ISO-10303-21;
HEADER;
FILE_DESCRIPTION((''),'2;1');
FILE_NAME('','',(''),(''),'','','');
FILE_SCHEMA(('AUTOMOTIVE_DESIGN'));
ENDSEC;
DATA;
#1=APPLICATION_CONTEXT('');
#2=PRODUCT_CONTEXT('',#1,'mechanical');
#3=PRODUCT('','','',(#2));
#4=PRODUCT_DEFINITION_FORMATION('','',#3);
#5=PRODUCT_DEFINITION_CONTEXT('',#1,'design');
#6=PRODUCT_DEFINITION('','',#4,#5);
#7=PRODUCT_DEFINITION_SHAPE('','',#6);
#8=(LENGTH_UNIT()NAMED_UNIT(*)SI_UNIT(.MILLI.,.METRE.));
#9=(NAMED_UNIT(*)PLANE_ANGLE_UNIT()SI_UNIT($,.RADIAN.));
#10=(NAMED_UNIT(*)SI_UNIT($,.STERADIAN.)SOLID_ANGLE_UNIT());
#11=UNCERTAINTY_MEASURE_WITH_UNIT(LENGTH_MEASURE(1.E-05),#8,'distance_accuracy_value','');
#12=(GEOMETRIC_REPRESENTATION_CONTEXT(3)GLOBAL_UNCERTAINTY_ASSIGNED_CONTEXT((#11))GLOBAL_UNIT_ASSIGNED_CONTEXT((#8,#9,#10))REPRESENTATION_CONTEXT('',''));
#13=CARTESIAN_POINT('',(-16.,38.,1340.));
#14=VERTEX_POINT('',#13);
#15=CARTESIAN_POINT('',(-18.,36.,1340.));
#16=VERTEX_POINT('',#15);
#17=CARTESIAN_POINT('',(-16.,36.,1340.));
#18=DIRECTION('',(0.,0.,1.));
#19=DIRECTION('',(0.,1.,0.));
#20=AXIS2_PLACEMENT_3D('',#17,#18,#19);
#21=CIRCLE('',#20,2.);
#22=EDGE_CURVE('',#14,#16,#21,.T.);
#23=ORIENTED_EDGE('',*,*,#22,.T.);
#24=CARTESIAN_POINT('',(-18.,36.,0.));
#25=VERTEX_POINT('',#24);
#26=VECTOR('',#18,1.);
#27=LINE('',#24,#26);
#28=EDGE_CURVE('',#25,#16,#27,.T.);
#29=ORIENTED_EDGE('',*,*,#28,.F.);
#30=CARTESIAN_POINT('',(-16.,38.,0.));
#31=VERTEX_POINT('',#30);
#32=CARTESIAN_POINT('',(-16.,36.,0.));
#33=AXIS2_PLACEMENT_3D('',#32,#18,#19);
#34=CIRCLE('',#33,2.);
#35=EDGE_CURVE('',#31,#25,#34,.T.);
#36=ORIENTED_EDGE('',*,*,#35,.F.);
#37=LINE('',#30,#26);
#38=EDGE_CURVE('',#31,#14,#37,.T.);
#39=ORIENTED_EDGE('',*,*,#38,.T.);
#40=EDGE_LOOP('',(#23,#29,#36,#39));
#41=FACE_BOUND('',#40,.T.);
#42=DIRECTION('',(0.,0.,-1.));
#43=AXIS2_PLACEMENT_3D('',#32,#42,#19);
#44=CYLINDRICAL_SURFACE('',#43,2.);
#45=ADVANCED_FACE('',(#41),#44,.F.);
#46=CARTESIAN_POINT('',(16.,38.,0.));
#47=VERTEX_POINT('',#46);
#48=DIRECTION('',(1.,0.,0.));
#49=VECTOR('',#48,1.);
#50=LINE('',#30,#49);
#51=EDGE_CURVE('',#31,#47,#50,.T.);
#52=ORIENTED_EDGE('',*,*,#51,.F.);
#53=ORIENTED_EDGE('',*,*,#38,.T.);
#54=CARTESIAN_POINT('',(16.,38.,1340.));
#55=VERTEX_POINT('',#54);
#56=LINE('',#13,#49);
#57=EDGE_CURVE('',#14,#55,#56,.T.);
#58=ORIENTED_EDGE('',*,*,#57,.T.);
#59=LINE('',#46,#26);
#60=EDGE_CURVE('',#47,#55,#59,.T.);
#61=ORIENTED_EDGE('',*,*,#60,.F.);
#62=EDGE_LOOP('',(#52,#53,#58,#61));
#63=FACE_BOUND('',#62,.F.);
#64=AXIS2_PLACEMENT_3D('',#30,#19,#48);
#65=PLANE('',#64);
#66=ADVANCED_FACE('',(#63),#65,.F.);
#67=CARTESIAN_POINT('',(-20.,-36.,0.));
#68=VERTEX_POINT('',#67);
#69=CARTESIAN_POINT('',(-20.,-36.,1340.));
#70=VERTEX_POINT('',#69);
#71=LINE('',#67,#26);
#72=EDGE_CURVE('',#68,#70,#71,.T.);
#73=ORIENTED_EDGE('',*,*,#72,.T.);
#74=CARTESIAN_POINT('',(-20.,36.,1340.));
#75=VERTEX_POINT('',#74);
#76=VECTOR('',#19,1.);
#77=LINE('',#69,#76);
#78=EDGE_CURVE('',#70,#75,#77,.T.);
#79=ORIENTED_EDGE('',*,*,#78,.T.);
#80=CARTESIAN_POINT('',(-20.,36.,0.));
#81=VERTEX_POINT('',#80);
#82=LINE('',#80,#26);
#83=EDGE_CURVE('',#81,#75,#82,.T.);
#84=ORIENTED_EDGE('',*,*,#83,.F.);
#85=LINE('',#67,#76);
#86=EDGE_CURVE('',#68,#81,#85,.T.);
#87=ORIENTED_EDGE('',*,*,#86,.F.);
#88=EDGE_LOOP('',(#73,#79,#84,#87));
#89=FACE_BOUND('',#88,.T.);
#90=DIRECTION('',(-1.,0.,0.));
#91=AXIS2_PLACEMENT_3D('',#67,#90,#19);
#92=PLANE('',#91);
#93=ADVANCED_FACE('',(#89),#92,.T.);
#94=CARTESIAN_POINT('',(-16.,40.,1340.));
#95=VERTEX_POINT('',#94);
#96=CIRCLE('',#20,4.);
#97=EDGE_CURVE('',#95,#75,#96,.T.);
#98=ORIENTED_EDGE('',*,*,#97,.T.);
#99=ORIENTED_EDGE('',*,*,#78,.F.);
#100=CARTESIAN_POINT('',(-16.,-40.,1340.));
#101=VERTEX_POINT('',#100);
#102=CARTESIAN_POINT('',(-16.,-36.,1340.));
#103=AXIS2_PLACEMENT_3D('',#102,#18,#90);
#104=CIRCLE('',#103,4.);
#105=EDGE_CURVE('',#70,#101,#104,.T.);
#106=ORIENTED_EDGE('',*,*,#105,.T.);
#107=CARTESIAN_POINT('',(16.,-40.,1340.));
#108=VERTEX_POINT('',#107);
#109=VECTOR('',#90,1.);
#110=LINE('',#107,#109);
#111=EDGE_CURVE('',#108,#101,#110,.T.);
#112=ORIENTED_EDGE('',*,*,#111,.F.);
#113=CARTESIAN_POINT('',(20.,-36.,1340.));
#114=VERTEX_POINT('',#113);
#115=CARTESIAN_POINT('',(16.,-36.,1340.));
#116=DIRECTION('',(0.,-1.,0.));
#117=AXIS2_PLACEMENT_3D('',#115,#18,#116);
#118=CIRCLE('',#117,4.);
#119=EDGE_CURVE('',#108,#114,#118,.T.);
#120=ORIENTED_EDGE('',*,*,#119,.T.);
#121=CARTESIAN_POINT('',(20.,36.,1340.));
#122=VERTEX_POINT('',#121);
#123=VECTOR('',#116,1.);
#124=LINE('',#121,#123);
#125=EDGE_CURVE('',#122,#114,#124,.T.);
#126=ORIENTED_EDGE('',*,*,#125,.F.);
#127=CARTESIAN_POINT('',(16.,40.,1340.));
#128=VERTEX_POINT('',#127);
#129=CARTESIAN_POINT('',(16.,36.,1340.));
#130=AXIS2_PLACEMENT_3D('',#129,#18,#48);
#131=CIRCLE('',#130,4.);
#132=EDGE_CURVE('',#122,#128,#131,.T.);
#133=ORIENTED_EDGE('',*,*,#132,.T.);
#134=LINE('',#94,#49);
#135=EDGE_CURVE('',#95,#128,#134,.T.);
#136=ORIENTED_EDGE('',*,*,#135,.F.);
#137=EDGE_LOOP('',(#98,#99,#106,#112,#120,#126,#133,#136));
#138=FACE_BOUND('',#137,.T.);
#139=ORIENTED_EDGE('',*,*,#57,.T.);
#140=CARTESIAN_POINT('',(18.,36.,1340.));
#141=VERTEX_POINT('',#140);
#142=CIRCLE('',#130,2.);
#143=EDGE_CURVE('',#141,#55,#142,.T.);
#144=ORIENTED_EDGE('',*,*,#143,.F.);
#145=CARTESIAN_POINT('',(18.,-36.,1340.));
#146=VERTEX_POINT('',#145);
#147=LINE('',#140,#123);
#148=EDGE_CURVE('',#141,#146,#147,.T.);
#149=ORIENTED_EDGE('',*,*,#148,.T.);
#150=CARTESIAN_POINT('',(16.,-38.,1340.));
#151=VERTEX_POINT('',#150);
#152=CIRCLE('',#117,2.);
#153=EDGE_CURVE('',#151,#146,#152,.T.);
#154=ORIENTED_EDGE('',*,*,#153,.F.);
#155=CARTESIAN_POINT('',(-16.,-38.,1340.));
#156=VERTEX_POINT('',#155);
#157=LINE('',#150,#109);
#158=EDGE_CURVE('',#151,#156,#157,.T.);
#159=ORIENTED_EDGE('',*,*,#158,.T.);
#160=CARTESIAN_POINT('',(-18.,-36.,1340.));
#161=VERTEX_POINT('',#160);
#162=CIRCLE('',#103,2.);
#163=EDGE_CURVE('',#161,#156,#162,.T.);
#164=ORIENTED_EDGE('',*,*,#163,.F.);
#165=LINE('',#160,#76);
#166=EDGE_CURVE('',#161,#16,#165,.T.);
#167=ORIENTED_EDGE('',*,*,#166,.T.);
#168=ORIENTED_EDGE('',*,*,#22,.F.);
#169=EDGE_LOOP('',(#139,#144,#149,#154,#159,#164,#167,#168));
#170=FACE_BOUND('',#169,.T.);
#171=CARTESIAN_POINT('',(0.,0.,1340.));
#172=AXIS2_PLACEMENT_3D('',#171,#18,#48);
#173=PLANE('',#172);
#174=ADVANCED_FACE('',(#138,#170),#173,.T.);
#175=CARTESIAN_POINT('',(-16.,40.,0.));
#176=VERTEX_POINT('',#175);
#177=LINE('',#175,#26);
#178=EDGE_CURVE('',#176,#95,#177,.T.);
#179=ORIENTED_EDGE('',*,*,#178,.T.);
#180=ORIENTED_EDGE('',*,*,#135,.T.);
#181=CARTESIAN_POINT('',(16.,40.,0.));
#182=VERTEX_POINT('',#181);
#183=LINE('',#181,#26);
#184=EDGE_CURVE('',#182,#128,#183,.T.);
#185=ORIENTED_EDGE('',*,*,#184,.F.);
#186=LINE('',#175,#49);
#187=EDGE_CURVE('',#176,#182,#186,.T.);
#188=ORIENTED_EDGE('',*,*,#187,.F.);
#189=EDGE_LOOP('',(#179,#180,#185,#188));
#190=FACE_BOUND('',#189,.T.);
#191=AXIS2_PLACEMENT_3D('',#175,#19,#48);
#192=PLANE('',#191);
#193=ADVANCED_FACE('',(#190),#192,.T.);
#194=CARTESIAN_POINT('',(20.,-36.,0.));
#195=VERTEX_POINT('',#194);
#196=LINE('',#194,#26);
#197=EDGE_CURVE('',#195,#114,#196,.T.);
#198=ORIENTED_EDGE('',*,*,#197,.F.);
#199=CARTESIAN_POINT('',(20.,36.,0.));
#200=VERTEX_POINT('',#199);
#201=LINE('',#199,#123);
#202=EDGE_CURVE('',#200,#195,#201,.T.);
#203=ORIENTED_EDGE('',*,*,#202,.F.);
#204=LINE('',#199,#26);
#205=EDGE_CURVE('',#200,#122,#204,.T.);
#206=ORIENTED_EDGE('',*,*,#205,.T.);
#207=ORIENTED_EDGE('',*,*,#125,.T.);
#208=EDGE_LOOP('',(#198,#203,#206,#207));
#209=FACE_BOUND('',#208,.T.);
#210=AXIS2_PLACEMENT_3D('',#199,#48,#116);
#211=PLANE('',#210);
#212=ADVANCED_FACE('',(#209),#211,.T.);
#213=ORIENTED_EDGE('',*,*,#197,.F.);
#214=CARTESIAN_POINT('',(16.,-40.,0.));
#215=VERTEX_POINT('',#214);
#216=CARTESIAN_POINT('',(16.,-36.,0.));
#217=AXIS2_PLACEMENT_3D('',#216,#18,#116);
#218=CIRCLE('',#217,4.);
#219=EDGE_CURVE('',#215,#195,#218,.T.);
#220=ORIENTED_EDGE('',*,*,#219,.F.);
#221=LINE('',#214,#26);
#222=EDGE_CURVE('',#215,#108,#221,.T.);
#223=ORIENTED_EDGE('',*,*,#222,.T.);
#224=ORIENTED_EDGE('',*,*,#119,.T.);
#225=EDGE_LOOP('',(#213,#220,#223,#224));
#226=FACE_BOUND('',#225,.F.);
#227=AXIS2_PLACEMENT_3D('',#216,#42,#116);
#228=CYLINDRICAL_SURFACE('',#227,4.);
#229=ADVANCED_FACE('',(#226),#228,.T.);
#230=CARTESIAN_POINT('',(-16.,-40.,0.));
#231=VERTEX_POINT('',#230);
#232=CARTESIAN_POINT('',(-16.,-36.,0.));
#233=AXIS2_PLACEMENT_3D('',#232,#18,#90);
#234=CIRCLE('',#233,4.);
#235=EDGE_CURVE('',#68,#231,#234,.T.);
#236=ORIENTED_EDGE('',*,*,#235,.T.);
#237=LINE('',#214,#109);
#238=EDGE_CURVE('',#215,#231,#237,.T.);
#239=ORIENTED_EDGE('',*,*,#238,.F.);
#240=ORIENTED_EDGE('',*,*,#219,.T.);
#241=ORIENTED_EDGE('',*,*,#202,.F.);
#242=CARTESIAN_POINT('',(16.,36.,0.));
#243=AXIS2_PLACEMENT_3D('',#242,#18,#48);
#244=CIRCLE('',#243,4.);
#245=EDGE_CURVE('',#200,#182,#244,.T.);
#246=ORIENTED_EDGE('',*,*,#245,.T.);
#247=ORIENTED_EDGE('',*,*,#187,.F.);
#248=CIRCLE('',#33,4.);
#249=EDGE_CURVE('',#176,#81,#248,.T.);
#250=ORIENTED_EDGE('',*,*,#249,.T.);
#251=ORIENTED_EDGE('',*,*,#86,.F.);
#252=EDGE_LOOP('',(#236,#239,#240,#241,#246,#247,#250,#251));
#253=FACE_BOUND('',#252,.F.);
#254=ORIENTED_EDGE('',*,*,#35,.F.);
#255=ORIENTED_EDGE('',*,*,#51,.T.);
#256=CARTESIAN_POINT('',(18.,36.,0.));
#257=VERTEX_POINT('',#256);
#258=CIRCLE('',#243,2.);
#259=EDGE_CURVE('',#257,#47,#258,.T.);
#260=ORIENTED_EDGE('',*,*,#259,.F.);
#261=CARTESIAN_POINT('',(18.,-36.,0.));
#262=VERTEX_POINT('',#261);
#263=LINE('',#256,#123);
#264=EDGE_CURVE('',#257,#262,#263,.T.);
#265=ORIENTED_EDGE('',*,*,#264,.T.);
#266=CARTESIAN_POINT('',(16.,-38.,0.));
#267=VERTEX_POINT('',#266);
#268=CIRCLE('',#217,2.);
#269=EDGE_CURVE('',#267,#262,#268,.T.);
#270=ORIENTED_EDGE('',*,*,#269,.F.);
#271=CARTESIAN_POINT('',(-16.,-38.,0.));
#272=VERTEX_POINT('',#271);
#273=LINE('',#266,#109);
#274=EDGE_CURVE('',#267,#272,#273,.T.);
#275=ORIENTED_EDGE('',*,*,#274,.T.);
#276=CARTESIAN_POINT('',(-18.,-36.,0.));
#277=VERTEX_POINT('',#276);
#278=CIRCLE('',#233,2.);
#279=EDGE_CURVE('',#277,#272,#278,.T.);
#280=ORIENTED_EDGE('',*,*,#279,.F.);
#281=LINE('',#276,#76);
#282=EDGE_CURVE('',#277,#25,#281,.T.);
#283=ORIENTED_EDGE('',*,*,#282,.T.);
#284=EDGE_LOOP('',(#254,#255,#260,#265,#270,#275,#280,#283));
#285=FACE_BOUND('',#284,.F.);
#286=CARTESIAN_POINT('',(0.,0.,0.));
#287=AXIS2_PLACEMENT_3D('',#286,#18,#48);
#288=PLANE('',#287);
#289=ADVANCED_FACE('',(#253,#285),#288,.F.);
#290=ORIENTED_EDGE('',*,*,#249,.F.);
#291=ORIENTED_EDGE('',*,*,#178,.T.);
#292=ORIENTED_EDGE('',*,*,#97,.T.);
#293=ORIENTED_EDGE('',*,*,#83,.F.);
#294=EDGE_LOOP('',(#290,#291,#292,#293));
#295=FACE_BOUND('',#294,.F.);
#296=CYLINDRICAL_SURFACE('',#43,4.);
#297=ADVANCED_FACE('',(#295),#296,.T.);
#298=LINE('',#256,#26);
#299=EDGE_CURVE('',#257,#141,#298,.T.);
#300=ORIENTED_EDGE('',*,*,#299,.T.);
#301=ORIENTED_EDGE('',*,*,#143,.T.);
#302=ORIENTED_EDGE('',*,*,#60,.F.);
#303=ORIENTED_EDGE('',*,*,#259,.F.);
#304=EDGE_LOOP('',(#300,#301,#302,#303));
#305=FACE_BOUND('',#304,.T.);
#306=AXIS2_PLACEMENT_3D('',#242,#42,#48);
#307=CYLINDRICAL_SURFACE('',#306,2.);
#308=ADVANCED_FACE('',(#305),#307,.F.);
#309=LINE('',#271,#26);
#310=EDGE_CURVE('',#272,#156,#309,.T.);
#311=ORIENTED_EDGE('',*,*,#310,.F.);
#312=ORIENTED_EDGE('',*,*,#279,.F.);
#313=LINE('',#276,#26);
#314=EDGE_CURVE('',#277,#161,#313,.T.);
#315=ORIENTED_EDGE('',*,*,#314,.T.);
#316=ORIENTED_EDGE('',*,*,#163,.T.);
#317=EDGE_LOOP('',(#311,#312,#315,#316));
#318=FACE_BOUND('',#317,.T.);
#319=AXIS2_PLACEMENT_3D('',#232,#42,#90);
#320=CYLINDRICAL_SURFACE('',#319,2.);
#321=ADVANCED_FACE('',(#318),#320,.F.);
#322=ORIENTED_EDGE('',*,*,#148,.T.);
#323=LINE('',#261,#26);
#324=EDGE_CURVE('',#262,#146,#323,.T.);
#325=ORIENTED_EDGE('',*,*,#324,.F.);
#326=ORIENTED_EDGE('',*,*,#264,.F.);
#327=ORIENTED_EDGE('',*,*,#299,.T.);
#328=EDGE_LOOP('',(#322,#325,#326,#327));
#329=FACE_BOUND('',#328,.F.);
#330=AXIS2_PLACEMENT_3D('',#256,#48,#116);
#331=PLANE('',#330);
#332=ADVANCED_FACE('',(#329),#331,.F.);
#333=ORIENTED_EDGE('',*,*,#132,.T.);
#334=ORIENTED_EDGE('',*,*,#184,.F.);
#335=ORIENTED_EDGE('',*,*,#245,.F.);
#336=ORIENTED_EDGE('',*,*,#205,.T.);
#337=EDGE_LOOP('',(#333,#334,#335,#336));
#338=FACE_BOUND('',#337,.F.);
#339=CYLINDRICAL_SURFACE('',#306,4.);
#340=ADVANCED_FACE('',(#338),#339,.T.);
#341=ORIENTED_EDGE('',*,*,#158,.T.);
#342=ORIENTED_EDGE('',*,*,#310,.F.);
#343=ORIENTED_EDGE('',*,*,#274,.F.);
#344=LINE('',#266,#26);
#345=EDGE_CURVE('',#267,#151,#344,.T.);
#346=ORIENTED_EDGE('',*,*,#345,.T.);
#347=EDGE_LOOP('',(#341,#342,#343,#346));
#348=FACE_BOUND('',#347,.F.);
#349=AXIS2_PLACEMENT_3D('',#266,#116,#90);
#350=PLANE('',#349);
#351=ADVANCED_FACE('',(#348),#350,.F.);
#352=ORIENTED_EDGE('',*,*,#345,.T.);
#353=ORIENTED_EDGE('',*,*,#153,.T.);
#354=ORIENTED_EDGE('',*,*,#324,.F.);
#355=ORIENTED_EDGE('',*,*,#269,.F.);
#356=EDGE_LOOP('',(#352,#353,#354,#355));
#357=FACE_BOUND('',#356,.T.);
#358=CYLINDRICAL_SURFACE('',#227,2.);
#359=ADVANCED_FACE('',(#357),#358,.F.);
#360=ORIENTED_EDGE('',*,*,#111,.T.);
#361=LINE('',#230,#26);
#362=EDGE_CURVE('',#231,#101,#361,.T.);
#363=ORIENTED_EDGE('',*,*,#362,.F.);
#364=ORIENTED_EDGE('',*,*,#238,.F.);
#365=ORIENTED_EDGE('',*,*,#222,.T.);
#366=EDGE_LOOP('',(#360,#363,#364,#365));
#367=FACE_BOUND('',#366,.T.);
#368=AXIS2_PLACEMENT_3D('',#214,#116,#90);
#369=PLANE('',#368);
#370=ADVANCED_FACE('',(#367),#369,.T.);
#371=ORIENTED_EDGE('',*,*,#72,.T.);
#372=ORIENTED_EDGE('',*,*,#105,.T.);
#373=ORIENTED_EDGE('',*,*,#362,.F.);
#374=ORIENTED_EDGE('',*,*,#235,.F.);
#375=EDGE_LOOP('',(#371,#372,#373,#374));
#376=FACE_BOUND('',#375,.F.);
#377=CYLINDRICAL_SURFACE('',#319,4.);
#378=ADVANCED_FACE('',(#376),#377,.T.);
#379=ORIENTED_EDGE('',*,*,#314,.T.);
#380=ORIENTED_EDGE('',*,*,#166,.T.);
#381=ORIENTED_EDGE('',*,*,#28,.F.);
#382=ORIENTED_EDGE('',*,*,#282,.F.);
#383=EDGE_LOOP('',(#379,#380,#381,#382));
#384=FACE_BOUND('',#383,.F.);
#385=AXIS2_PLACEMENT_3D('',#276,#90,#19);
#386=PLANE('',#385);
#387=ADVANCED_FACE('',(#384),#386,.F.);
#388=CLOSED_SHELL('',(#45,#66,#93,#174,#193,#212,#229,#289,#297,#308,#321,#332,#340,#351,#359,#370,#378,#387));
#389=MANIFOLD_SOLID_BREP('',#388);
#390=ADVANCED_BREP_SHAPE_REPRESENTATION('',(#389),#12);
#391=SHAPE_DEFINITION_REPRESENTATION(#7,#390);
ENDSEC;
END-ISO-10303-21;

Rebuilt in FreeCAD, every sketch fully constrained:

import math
import FreeCAD as App
import Part
import Sketcher
from FreeCAD import Vector
Q = App.Units.Quantity

doc = App.newDocument("Part")
body = doc.addObject("PartDesign::Body", "Body")

sketch1 = body.newObject("Sketcher::SketchObject", "Sketch")
sketch1.AttachmentSupport = (doc.getObject("XY_Plane"), [""])
sketch1.MapMode = "FlatFace"
sketch1.addGeometry(Part.LineSegment(Vector(-20, 36, 0), Vector(-20, -36, 0)), False)
sketch1.addGeometry(Part.ArcOfCircle(Part.Circle(Vector(-16, -36, 0), Vector(0, 0, 1), 4), math.radians(180), math.radians(270)), False)
sketch1.addGeometry(Part.LineSegment(Vector(-16, -40, 0), Vector(16, -40, 0)), False)
sketch1.addGeometry(Part.ArcOfCircle(Part.Circle(Vector(16, -36, 0), Vector(0, 0, 1), 4), math.radians(-90), math.radians(0)), False)
sketch1.addGeometry(Part.LineSegment(Vector(20, -36, 0), Vector(20, 36, 0)), False)
sketch1.addGeometry(Part.ArcOfCircle(Part.Circle(Vector(16, 36, 0), Vector(0, 0, 1), 4), math.radians(0), math.radians(90)), False)
sketch1.addGeometry(Part.LineSegment(Vector(16, 40, 0), Vector(-16, 40, 0)), False)
sketch1.addGeometry(Part.ArcOfCircle(Part.Circle(Vector(-16, 36, 0), Vector(0, 0, 1), 4), math.radians(90), math.radians(180)), False)
sketch1.addGeometry(Part.ArcOfCircle(Part.Circle(Vector(-16, 36, 0), Vector(0, 0, 1), 2), math.radians(90), math.radians(180)), False)
sketch1.addGeometry(Part.LineSegment(Vector(-16, 38, 0), Vector(16, 38, 0)), False)
sketch1.addGeometry(Part.ArcOfCircle(Part.Circle(Vector(16, 36, 0), Vector(0, 0, 1), 2), math.radians(0), math.radians(90)), False)
sketch1.addGeometry(Part.LineSegment(Vector(18, 36, 0), Vector(18, -36, 0)), False)
sketch1.addGeometry(Part.ArcOfCircle(Part.Circle(Vector(16, -36, 0), Vector(0, 0, 1), 2), math.radians(-90), math.radians(0)), False)
sketch1.addGeometry(Part.LineSegment(Vector(16, -38, 0), Vector(-16, -38, 0)), False)
sketch1.addGeometry(Part.ArcOfCircle(Part.Circle(Vector(-16, -36, 0), Vector(0, 0, 1), 2), math.radians(180), math.radians(270)), False)
sketch1.addGeometry(Part.LineSegment(Vector(-18, -36, 0), Vector(-18, 36, 0)), False)
sketch1.addConstraint(Sketcher.Constraint("Tangent", 0, 2, 1, 1))
sketch1.addConstraint(Sketcher.Constraint("Tangent", 1, 2, 2, 1))
sketch1.addConstraint(Sketcher.Constraint("Tangent", 2, 2, 3, 1))
sketch1.addConstraint(Sketcher.Constraint("Tangent", 3, 2, 4, 1))
sketch1.addConstraint(Sketcher.Constraint("Tangent", 4, 2, 5, 1))
sketch1.addConstraint(Sketcher.Constraint("Tangent", 5, 2, 6, 1))
sketch1.addConstraint(Sketcher.Constraint("Tangent", 6, 2, 7, 1))
sketch1.addConstraint(Sketcher.Constraint("Tangent", 7, 2, 0, 1))
sketch1.addConstraint(Sketcher.Constraint("Tangent", 8, 1, 9, 1))
sketch1.addConstraint(Sketcher.Constraint("Tangent", 9, 2, 10, 2))
sketch1.addConstraint(Sketcher.Constraint("Tangent", 10, 1, 11, 1))
sketch1.addConstraint(Sketcher.Constraint("Tangent", 11, 2, 12, 2))
sketch1.addConstraint(Sketcher.Constraint("Tangent", 12, 1, 13, 1))
sketch1.addConstraint(Sketcher.Constraint("Tangent", 13, 2, 14, 2))
sketch1.addConstraint(Sketcher.Constraint("Tangent", 14, 1, 15, 1))
sketch1.addConstraint(Sketcher.Constraint("Tangent", 15, 2, 8, 2))
sketch1.addConstraint(Sketcher.Constraint("Vertical", 0))
sketch1.addConstraint(Sketcher.Constraint("Horizontal", 2))
sketch1.addConstraint(Sketcher.Constraint("Vertical", 4))
sketch1.addConstraint(Sketcher.Constraint("Horizontal", 6))
sketch1.addConstraint(Sketcher.Constraint("Horizontal", 9))
sketch1.addConstraint(Sketcher.Constraint("Vertical", 11))
sketch1.addConstraint(Sketcher.Constraint("Horizontal", 13))
sketch1.addConstraint(Sketcher.Constraint("Vertical", 15))
sketch1.addConstraint(Sketcher.Constraint("Coincident", 8, 3, 7, 3))
sketch1.addConstraint(Sketcher.Constraint("Coincident", 10, 3, 5, 3))
sketch1.addConstraint(Sketcher.Constraint("Coincident", 12, 3, 3, 3))
sketch1.addConstraint(Sketcher.Constraint("Equal", 1, 3))
sketch1.addConstraint(Sketcher.Constraint("Equal", 3, 5))
sketch1.addConstraint(Sketcher.Constraint("Equal", 5, 7))
sketch1.addConstraint(Sketcher.Constraint("Equal", 12, 14))
sketch1.addConstraint(Sketcher.Constraint("Symmetric", 1, 3, 5, 3, -1, 1))
sketch1.addConstraint(Sketcher.Constraint("Radius", 1, Q("4 mm")))
sketch1.addConstraint(Sketcher.Constraint("Radius", 8, Q("2 mm")))
sketch1.addConstraint(Sketcher.Constraint("DistanceX", 0, 2, -1, 1, Q("20 mm")))
sketch1.addConstraint(Sketcher.Constraint("DistanceY", 1, 2, -1, 1, Q("40 mm")))
pad1 = body.newObject("PartDesign::Pad", "Pad")
pad1.Profile = sketch1
pad1.Length = 1340

doc.recompute()
